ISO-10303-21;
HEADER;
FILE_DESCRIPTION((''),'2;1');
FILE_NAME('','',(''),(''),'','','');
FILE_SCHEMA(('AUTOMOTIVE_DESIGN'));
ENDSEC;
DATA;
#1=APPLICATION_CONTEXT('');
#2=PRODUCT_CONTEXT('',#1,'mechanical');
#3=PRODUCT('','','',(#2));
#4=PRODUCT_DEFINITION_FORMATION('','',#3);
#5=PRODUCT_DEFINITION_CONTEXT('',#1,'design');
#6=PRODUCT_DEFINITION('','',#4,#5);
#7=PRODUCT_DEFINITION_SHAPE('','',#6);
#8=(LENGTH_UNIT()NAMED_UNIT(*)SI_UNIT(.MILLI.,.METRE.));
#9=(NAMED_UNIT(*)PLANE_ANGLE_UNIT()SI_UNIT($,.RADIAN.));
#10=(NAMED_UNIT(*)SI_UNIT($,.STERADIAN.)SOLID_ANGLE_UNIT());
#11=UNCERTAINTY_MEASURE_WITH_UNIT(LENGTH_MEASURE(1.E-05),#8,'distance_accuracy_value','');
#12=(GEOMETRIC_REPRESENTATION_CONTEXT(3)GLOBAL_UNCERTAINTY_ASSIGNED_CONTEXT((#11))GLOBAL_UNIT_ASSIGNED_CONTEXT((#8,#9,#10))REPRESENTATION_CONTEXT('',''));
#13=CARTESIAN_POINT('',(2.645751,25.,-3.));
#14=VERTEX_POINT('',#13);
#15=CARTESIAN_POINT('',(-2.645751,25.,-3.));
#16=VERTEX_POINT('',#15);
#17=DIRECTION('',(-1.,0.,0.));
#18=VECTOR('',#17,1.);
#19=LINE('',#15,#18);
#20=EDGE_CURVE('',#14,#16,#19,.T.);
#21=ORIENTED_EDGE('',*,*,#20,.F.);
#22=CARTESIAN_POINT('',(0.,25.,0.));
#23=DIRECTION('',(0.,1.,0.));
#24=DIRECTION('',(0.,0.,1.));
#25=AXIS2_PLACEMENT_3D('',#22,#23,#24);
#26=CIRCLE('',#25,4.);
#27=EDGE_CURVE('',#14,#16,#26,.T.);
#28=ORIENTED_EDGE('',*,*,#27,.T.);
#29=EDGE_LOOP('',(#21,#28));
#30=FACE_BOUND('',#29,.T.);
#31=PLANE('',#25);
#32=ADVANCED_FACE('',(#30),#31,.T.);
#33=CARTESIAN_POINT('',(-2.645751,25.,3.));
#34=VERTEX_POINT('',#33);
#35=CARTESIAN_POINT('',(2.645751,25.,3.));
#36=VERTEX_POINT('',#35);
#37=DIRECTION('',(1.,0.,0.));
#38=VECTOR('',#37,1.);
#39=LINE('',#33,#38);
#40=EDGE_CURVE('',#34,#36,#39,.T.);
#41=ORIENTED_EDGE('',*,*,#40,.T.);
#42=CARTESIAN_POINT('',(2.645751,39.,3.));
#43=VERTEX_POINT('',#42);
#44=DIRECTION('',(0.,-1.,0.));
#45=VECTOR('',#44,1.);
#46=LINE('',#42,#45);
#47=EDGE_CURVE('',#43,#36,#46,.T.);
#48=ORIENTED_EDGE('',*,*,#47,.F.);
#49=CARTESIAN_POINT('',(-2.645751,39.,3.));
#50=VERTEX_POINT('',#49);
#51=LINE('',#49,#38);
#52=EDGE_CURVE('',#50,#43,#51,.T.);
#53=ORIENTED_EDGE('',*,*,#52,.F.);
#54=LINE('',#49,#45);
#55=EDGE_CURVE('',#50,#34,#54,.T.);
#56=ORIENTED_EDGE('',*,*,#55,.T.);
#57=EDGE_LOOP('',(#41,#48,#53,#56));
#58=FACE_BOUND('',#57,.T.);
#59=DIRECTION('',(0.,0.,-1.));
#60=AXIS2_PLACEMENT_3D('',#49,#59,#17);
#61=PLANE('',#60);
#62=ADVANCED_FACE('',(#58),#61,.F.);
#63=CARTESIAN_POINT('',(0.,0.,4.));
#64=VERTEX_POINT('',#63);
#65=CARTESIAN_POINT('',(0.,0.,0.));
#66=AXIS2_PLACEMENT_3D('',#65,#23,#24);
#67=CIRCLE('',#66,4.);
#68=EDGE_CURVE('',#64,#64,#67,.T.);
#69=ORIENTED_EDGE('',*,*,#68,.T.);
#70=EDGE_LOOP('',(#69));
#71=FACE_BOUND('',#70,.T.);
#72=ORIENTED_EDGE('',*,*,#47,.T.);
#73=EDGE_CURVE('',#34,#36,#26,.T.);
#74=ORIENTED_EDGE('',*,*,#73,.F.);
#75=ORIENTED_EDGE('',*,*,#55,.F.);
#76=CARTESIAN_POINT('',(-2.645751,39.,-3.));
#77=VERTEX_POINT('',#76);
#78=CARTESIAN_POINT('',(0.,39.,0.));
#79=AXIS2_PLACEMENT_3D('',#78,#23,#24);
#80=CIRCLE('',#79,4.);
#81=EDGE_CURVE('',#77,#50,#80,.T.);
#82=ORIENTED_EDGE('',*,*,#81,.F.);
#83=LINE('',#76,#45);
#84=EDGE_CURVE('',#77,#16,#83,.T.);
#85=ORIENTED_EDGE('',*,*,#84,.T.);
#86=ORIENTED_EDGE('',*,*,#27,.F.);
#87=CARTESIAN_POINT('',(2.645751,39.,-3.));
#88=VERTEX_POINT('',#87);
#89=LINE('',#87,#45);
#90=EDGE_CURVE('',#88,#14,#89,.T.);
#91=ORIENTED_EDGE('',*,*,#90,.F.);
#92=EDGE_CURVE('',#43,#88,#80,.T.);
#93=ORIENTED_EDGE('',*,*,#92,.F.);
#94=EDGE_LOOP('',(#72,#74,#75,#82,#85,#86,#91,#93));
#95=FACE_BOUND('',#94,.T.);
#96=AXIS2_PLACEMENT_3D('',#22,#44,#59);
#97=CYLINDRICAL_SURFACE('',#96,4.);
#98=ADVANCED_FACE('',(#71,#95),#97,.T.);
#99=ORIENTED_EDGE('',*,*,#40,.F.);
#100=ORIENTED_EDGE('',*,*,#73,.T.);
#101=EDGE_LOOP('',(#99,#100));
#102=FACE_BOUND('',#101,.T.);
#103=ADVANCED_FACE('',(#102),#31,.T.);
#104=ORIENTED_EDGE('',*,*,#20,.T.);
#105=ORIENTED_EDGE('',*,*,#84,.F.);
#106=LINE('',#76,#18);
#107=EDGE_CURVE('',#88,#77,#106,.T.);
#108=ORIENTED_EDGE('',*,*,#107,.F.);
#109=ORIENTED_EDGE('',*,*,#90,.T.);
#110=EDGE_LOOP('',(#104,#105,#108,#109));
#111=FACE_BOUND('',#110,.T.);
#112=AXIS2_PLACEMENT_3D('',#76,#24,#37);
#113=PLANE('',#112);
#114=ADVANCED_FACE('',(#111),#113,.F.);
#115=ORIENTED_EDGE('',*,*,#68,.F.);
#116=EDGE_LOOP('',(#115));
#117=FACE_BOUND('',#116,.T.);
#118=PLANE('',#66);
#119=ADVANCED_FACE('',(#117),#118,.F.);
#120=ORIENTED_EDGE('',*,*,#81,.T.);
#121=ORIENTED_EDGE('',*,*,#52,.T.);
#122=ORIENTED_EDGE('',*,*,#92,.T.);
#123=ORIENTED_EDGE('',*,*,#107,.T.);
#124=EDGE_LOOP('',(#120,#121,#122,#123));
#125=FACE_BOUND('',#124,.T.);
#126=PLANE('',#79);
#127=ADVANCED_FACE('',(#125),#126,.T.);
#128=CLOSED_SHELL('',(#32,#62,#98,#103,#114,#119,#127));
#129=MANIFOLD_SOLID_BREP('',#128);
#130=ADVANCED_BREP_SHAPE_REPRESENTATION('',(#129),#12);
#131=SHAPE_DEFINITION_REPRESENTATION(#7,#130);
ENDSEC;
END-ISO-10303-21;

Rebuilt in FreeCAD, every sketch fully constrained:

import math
import FreeCAD as App
import Part
import Sketcher
from FreeCAD import Vector

doc = App.newDocument("Part")
params = doc.addObject("Spreadsheet::Sheet", "Params")
for row, (alias, value) in enumerate([
    ("sketch1_diameter", "8 mm"),
    ("pad1_length", "25 mm"),
    ("sketch2_radius", "4 mm"),
    ("pad2_length", "14 mm"),
], start=1):
    params.set(f"A{row}", alias)
    params.set(f"B{row}", "=" + value)
    params.setAlias(f"B{row}", alias)

body = doc.addObject("PartDesign::Body", "Body")

sketch1 = doc.addObject("Sketcher::SketchObject", "Sketch")
body.addObject(sketch1)
sketch1.AttachmentSupport = (doc.XZ_Plane, [""])
sketch1.MapMode = "FlatFace"
sketch1.addGeometry(Part.Circle(Vector(0, 0, 0), Vector(0, 0, 1), 4), False)
sketch1.addConstraint(Sketcher.Constraint("Coincident", 0, 3, -1, 1))
sketch1.addConstraint(Sketcher.Constraint("Diameter", 0, 8.0))
sketch1.setExpression("Constraints[1]", "Params.sketch1_diameter")
pad1 = doc.addObject("PartDesign::Pad", "Pad")
body.addObject(pad1)
pad1.Profile = sketch1
pad1.setExpression("Length", "Params.pad1_length")
pad1.Reversed = True

sketch2 = doc.addObject("Sketcher::SketchObject", "Sketch001")
body.addObject(sketch2)
sketch2.AttachmentSupport = (doc.XZ_Plane, [""])
sketch2.MapMode = "FlatFace"
sketch2.AttachmentOffset = App.Placement(Vector(0, 0, -25), App.Rotation())
sketch2.addGeometry(Part.LineSegment(Vector(-2.6, 3, 0), Vector(2.6, 3, 0)), False)
sketch2.addGeometry(Part.ArcOfCircle(Part.Circle(Vector(0, 0, 0), Vector(0, 0, 1), 4), math.radians(-49), math.radians(49)), False)
sketch2.addGeometry(Part.LineSegment(Vector(2.6, -3, 0), Vector(-2.6, -3, 0)), False)
sketch2.addGeometry(Part.ArcOfCircle(Part.Circle(Vector(0, 0, 0), Vector(0, 0, 1), 4), math.radians(131), math.radians(229)), False)
sketch2.addConstraint(Sketcher.Constraint("Coincident", 0, 2, 1, 2))
sketch2.addConstraint(Sketcher.Constraint("Coincident", 1, 1, 2, 1))
sketch2.addConstraint(Sketcher.Constraint("Coincident", 2, 2, 3, 2))
sketch2.addConstraint(Sketcher.Constraint("Coincident", 3, 1, 0, 1))
sketch2.addConstraint(Sketcher.Constraint("Horizontal", 0))
sketch2.addConstraint(Sketcher.Constraint("Horizontal", 2))
sketch2.addConstraint(Sketcher.Constraint("Coincident", 1, 3, -1, 1))
sketch2.addConstraint(Sketcher.Constraint("Coincident", 3, 3, -1, 1))
sketch2.addConstraint(Sketcher.Constraint("Equal", 1, 3))
sketch2.addConstraint(Sketcher.Constraint("Vertical", 0, 2, 1, 1))
sketch2.addConstraint(Sketcher.Constraint("Radius", 1, 4.0))
sketch2.addConstraint(Sketcher.Constraint("DistanceY", -1, 1, 0, 2, 3.0))
sketch2.setExpression("Constraints[10]", "Params.sketch2_radius")
pad2 = doc.addObject("PartDesign::Pad", "Pad001")
body.addObject(pad2)
pad2.Profile = sketch2
pad2.setExpression("Length", "Params.pad2_length")
pad2.Reversed = True

doc.recompute()
